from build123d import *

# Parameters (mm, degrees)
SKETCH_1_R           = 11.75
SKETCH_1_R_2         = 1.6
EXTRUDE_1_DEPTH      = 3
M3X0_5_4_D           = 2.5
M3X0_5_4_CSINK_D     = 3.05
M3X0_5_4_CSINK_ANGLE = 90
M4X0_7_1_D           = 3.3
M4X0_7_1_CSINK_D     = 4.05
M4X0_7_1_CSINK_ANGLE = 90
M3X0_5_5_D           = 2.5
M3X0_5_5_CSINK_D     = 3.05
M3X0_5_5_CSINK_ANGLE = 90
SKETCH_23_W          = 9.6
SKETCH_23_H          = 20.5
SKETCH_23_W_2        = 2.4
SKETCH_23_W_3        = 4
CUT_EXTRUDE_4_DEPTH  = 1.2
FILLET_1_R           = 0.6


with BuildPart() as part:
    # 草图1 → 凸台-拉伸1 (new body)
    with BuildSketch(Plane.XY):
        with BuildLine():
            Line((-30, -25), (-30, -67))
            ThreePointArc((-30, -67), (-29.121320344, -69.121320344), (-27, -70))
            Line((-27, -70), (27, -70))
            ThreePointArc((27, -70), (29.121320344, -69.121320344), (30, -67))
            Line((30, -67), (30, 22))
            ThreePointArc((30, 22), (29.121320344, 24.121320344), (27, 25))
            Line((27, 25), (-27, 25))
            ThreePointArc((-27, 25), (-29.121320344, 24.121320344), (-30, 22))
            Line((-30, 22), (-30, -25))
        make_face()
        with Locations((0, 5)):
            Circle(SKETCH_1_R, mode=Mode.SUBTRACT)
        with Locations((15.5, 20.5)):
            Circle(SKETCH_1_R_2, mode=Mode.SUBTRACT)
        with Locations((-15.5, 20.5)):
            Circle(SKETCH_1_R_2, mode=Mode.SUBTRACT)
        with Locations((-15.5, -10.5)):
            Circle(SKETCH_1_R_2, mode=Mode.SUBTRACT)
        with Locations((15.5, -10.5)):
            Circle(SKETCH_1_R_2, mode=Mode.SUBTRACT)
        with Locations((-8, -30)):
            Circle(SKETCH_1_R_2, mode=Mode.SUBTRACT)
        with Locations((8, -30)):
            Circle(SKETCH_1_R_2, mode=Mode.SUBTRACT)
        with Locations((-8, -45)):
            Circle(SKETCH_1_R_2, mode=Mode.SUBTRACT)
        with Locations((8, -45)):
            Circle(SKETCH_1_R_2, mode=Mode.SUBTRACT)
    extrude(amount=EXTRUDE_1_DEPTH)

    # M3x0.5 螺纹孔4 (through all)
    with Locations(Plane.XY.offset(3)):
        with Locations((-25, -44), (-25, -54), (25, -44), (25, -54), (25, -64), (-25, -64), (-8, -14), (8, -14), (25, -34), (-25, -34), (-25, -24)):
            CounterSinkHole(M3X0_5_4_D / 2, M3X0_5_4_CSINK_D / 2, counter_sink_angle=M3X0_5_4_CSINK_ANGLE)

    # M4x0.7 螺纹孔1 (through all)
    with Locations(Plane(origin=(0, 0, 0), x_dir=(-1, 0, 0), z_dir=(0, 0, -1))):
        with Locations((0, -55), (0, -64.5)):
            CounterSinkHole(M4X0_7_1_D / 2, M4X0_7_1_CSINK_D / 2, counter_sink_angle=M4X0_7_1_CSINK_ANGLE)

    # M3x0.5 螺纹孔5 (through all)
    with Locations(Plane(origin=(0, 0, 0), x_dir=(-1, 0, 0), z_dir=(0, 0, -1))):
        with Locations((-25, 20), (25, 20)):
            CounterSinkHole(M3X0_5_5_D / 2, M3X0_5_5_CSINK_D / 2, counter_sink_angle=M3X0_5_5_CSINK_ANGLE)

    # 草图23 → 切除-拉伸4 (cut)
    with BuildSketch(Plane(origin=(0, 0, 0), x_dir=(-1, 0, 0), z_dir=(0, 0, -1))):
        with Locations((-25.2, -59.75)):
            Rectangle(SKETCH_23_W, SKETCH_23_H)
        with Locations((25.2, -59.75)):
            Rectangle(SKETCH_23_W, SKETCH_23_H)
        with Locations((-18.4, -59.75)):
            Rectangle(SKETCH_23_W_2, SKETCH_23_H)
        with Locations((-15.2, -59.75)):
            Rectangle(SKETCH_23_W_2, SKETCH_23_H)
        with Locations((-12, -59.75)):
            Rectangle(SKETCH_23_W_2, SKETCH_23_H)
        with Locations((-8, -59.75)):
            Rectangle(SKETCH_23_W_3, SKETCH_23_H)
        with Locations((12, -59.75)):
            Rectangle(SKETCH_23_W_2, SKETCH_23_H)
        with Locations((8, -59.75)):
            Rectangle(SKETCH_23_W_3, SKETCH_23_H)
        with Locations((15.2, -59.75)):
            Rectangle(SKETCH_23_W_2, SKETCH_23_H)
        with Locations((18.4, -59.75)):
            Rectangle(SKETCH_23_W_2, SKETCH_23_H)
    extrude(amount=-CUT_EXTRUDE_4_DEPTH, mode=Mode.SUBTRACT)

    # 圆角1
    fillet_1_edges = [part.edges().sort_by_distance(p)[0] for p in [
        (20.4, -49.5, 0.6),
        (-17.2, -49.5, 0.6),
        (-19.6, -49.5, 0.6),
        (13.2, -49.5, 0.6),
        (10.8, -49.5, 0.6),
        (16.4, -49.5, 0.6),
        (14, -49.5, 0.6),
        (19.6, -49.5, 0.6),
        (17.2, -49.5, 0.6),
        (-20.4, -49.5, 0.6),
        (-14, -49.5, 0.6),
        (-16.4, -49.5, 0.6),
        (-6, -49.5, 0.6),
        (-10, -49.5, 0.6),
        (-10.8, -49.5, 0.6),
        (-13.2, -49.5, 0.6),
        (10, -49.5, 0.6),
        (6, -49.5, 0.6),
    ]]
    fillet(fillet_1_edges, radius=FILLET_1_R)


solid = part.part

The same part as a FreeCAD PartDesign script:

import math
import FreeCAD as App
import Part
import Sketcher
from FreeCAD import Vector
Q = App.Units.Quantity


def edges_at(feature, points):
    """Names of the edges that pass closest to the given points."""
    edges = feature.Shape.Edges
    near = lambda p: min(range(len(edges)), key=lambda i: edges[i].distToShape(Part.Vertex(*p))[0])
    return sorted({f"Edge{near(p) + 1}" for p in points})


def add_polygon(sketch, points):
    """Adds a closed chain of lines whose ends are joined by coincident constraints."""
    first, n = sketch.GeometryCount, len(points)
    for a, b in zip(points, points[1:] + points[:1]):
        sketch.addGeometry(Part.LineSegment(App.Vector(*a, 0), App.Vector(*b, 0)), False)
    for i in range(n):
        sketch.addConstraint(Sketcher.Constraint("Coincident", first + i, 2, first + (i + 1) % n, 1))

doc = App.newDocument("Part")
body = doc.addObject("PartDesign::Body", "Body")

# Sketch on XY plane
sketch1 = body.newObject("Sketcher::SketchObject", "Sketch")
sketch1.AttachmentSupport = (doc.getObject("XY_Plane"), [""])
sketch1.MapMode = "FlatFace"
sketch1.addGeometry([
    Part.ArcOfCircle(Part.Circle(Vector(-27, -67, 0), Vector(0, 0, 1), 3), math.radians(180), math.radians(270)),  # 0
    Part.LineSegment(Vector(-27, -70, 0), Vector(27, -70, 0)),  # 1
    Part.ArcOfCircle(Part.Circle(Vector(27, -67, 0), Vector(0, 0, 1), 3), math.radians(-90), math.radians(0)),  # 2
    Part.LineSegment(Vector(30, -67, 0), Vector(30, 22, 0)),  # 3
    Part.ArcOfCircle(Part.Circle(Vector(27, 22, 0), Vector(0, 0, 1), 3), math.radians(0), math.radians(90)),  # 4
    Part.LineSegment(Vector(27, 25, 0), Vector(-27, 25, 0)),  # 5
    Part.ArcOfCircle(Part.Circle(Vector(-27, 22, 0), Vector(0, 0, 1), 3), math.radians(90), math.radians(180)),  # 6
    Part.LineSegment(Vector(-30, 22, 0), Vector(-30, -67, 0)),  # 7
    Part.Circle(Vector(-8, -45, 0), Vector(0, 0, 1), 1.6),  # 8
    Part.Circle(Vector(-8, -30, 0), Vector(0, 0, 1), 1.6),  # 9
    Part.Circle(Vector(8, -45, 0), Vector(0, 0, 1), 1.6),  # 10
    Part.Circle(Vector(8, -30, 0), Vector(0, 0, 1), 1.6),  # 11
    Part.Circle(Vector(-15.5, -10.5, 0), Vector(0, 0, 1), 1.6),  # 12
    Part.Circle(Vector(-15.5, 20.5, 0), Vector(0, 0, 1), 1.6),  # 13
    Part.Circle(Vector(15.5, -10.5, 0), Vector(0, 0, 1), 1.6),  # 14
    Part.Circle(Vector(0, 5, 0), Vector(0, 0, 1), 11.8),  # 15
    Part.Circle(Vector(15.5, 20.5, 0), Vector(0, 0, 1), 1.6),  # 16
], False)
sketch1.addConstraint([
    Sketcher.Constraint("Tangent", 0, 2, 1, 1),
    Sketcher.Constraint("Tangent", 1, 2, 2, 1),
    Sketcher.Constraint("Tangent", 2, 2, 3, 1),
    Sketcher.Constraint("Tangent", 3, 2, 4, 1),
    Sketcher.Constraint("Tangent", 4, 2, 5, 1),
    Sketcher.Constraint("Tangent", 5, 2, 6, 1),
    Sketcher.Constraint("Tangent", 6, 2, 7, 1),
    Sketcher.Constraint("Tangent", 7, 2, 0, 1),
    Sketcher.Constraint("Horizontal", 1),
    Sketcher.Constraint("Vertical", 3),
    Sketcher.Constraint("Horizontal", 5),
    Sketcher.Constraint("Vertical", 7),
    Sketcher.Constraint("Equal", 0, 2),
    Sketcher.Constraint("Equal", 2, 4),
    Sketcher.Constraint("Equal", 4, 6),
    Sketcher.Constraint("Equal", 8, 9),
    Sketcher.Constraint("Equal", 9, 10),
    Sketcher.Constraint("Equal", 10, 11),
    Sketcher.Constraint("Equal", 11, 12),
    Sketcher.Constraint("Equal", 12, 13),
    Sketcher.Constraint("Equal", 13, 14),
    Sketcher.Constraint("Equal", 14, 16),
    Sketcher.Constraint("Symmetric", 8, 3, 10, 3, -2),
    Sketcher.Constraint("Symmetric", 9, 3, 11, 3, -2),
    Sketcher.Constraint("Symmetric", 12, 3, 14, 3, -2),
    Sketcher.Constraint("Symmetric", 13, 3, 16, 3, -2),
    Sketcher.Constraint("PointOnObject", 15, 3, -2),
    Sketcher.Constraint("Vertical", 8, 3, 9, 3),
    Sketcher.Constraint("Vertical", 12, 3, 13, 3),
    Sketcher.Constraint("Radius", 0, Q("3 mm")),
    Sketcher.Constraint("Diameter", 8, Q("3.2 mm")),
    Sketcher.Constraint("Diameter", 15, Q("23.5 mm")),
    Sketcher.Constraint("DistanceX", 1, 1, 1, 2, Q("54 mm")),
    Sketcher.Constraint("DistanceY", 3, 1, 3, 2, Q("89 mm")),
    Sketcher.Constraint("DistanceX", 0, 3, -1, 1, Q("27 mm")),
    Sketcher.Constraint("DistanceY", 0, 3, -1, 1, Q("67 mm")),
    Sketcher.Constraint("DistanceX", 8, 3, -1, 1, Q("8 mm")),
    Sketcher.Constraint("DistanceY", 8, 3, -1, 1, Q("45 mm")),
    Sketcher.Constraint("DistanceY", 9, 3, -1, 1, Q("30 mm")),
    Sketcher.Constraint("DistanceY", -1, 1, 15, 3, Q("5 mm")),
    Sketcher.Constraint("DistanceY", 12, 3, 13, 3, Q("31 mm")),
    Sketcher.Constraint("DistanceX", 12, 3, 14, 3, Q("31 mm")),
    Sketcher.Constraint("DistanceY", 12, 3, -1, 1, Q("10.5 mm")),
])
pad1 = body.newObject("PartDesign::Pad", "Pad")
pad1.Profile = sketch1
pad1.Length = 3

# Sketch on XY plane
sketch2 = body.newObject("Sketcher::SketchObject", "Sketch001")
sketch2.AttachmentSupport = (doc.getObject("XY_Plane"), [""])
sketch2.MapMode = "FlatFace"
sketch2.AttachmentOffset = App.Placement(Vector(0, 0, 3), App.Rotation())
sketch2.addGeometry([
    Part.Circle(Vector(-25, -44, 0), Vector(0, 0, 1), 1.2),  # 0
    Part.Circle(Vector(-25, -54, 0), Vector(0, 0, 1), 1.2),  # 1
    Part.Circle(Vector(25, -44, 0), Vector(0, 0, 1), 1.2),  # 2
    Part.Circle(Vector(25, -54, 0), Vector(0, 0, 1), 1.2),  # 3
    Part.Circle(Vector(25, -64, 0), Vector(0, 0, 1), 1.2),  # 4
    Part.Circle(Vector(-25, -64, 0), Vector(0, 0, 1), 1.2),  # 5
    Part.Circle(Vector(-8, -14, 0), Vector(0, 0, 1), 1.2),  # 6
    Part.Circle(Vector(8, -14, 0), Vector(0, 0, 1), 1.2),  # 7
    Part.Circle(Vector(25, -34, 0), Vector(0, 0, 1), 1.2),  # 8
    Part.Circle(Vector(-25, -34, 0), Vector(0, 0, 1), 1.2),  # 9
    Part.Circle(Vector(-25, -24, 0), Vector(0, 0, 1), 1.2),  # 10
], False)
sketch2.addConstraint([
    Sketcher.Constraint("Equal", 0, 1),
    Sketcher.Constraint("Equal", 1, 2),
    Sketcher.Constraint("Equal", 2, 3),
    Sketcher.Constraint("Equal", 3, 4),
    Sketcher.Constraint("Equal", 4, 5),
    Sketcher.Constraint("Equal", 5, 6),
    Sketcher.Constraint("Equal", 6, 7),
    Sketcher.Constraint("Equal", 7, 8),
    Sketcher.Constraint("Equal", 8, 9),
    Sketcher.Constraint("Equal", 9, 10),
    Sketcher.Constraint("Symmetric", 0, 3, 2, 3, -2),
    Sketcher.Constraint("Symmetric", 1, 3, 3, 3, -2),
    Sketcher.Constraint("Symmetric", 4, 3, 5, 3, -2),
    Sketcher.Constraint("Symmetric", 6, 3, 7, 3, -2),
    Sketcher.Constraint("Symmetric", 8, 3, 9, 3, -2),
    Sketcher.Constraint("Vertical", 0, 3, 1, 3),
    Sketcher.Constraint("Vertical", 3, 3, 4, 3),
    Sketcher.Constraint("Vertical", 4, 3, 8, 3),
    Sketcher.Constraint("Vertical", 9, 3, 10, 3),
    Sketcher.Constraint("Diameter", 0, Q("2.5 mm")),
    Sketcher.Constraint("DistanceX", 0, 3, -1, 1, Q("25 mm")),
    Sketcher.Constraint("DistanceY", 0, 3, -1, 1, Q("44 mm")),
    Sketcher.Constraint("DistanceY", 1, 3, -1, 1, Q("54 mm")),
    Sketcher.Constraint("DistanceY", 4, 3, -1, 1, Q("64 mm")),
    Sketcher.Constraint("DistanceX", 6, 3, -1, 1, Q("8 mm")),
    Sketcher.Constraint("DistanceY", 6, 3, -1, 1, Q("14 mm")),
    Sketcher.Constraint("DistanceY", 8, 3, -1, 1, Q("34 mm")),
    Sketcher.Constraint("DistanceY", 10, 3, -1, 1, Q("24 mm")),
])
doc.recompute()
hole = body.newObject("PartDesign::Hole", "Hole")
hole.Profile = sketch2
hole.ThreadType = "None"
hole.Diameter = 2.5
hole.DepthType = "ThroughAll"
hole.HoleCutType = "Countersink"
hole.HoleCutDiameter = 3.05
hole.HoleCutCountersinkAngle = 90

# Sketch on XY plane
sketch3 = body.newObject("Sketcher::SketchObject", "Sketch002")
sketch3.AttachmentSupport = (doc.getObject("XY_Plane"), [""])
sketch3.MapMode = "FlatFace"
sketch3.addGeometry([
    Part.Circle(Vector(0, -55, 0), Vector(0, 0, 1), 1.6),
    Part.Circle(Vector(0, -64.5, 0), Vector(0, 0, 1), 1.6),
], False)
sketch3.addConstraint([
    Sketcher.Constraint("Equal", 0, 1),
    Sketcher.Constraint("PointOnObject", 0, 3, -2),
    Sketcher.Constraint("PointOnObject", 1, 3, -2),
    Sketcher.Constraint("Diameter", 0, Q("3.3 mm")),
    Sketcher.Constraint("DistanceY", 0, 3, -1, 1, Q("55 mm")),
    Sketcher.Constraint("DistanceY", 1, 3, -1, 1, Q("64.5 mm")),
])
doc.recompute()
hole2 = body.newObject("PartDesign::Hole", "Hole001")
hole2.Profile = sketch3
hole2.ThreadType = "None"
hole2.Diameter = 3.3
hole2.DepthType = "ThroughAll"
hole2.HoleCutType = "Countersink"
hole2.HoleCutDiameter = 4.05
hole2.HoleCutCountersinkAngle = 90
hole2.Reversed = True

# Sketch on XY plane
sketch4 = body.newObject("Sketcher::SketchObject", "Sketch003")
sketch4.AttachmentSupport = (doc.getObject("XY_Plane"), [""])
sketch4.MapMode = "FlatFace"
sketch4.addGeometry([
    Part.Circle(Vector(25, 20, 0), Vector(0, 0, 1), 1.2),
    Part.Circle(Vector(-25, 20, 0), Vector(0, 0, 1), 1.2),
], False)
sketch4.addConstraint([
    Sketcher.Constraint("Equal", 0, 1),
    Sketcher.Constraint("Symmetric", 0, 3, 1, 3, -2),
    Sketcher.Constraint("Diameter", 0, Q("2.5 mm")),
    Sketcher.Constraint("DistanceX", -1, 1, 0, 3, Q("25 mm")),
    Sketcher.Constraint("DistanceY", -1, 1, 0, 3, Q("20 mm")),
])
doc.recompute()
hole3 = body.newObject("PartDesign::Hole", "Hole002")
hole3.Profile = sketch4
hole3.ThreadType = "None"
hole3.Diameter = 2.5
hole3.DepthType = "ThroughAll"
hole3.HoleCutType = "Countersink"
hole3.HoleCutDiameter = 3.05
hole3.HoleCutCountersinkAngle = 90
hole3.Reversed = True

# Sketch on XY plane
sketch5 = body.newObject("Sketcher::SketchObject", "Sketch004")
sketch5.AttachmentSupport = (doc.getObject("XY_Plane"), [""])
sketch5.MapMode = "FlatFace"
add_polygon(sketch5, [(30, -49.5), (30, -70), (20.4, -70), (20.4, -49.5)])  # lines 0-3
add_polygon(sketch5, [(-20.4, -49.5), (-20.4, -70), (-30, -70), (-30, -49.5)])  # lines 4-7
add_polygon(sketch5, [(19.6, -49.5), (19.6, -70), (17.2, -70), (17.2, -49.5)])  # lines 8-11
add_polygon(sketch5, [(16.4, -49.5), (16.4, -70), (14, -70), (14, -49.5)])  # lines 12-15
add_polygon(sketch5, [(13.2, -49.5), (13.2, -70), (10.8, -70), (10.8, -49.5)])  # lines 16-19
add_polygon(sketch5, [(10, -49.5), (10, -70), (6, -70), (6, -49.5)])  # lines 20-23
add_polygon(sketch5, [(-10.8, -49.5), (-10.8, -70), (-13.2, -70), (-13.2, -49.5)])  # lines 24-27
add_polygon(sketch5, [(-6, -49.5), (-6, -70), (-10, -70), (-10, -49.5)])  # lines 28-31
add_polygon(sketch5, [(-14, -49.5), (-14, -70), (-16.4, -70), (-16.4, -49.5)])  # lines 32-35
add_polygon(sketch5, [(-17.2, -49.5), (-17.2, -70), (-19.6, -70), (-19.6, -49.5)])  # lines 36-39
sketch5.addConstraint([
    Sketcher.Constraint("Vertical", 0),
    Sketcher.Constraint("Horizontal", 1),
    Sketcher.Constraint("Vertical", 2),
    Sketcher.Constraint("Horizontal", 3),
    Sketcher.Constraint("Vertical", 4),
    Sketcher.Constraint("Horizontal", 5),
    Sketcher.Constraint("Vertical", 6),
    Sketcher.Constraint("Horizontal", 7),
    Sketcher.Constraint("Vertical", 8),
    Sketcher.Constraint("Horizontal", 9),
    Sketcher.Constraint("Vertical", 10),
    Sketcher.Constraint("Horizontal", 11),
    Sketcher.Constraint("Vertical", 12),
    Sketcher.Constraint("Horizontal", 13),
    Sketcher.Constraint("Vertical", 14),
    Sketcher.Constraint("Horizontal", 15),
    Sketcher.Constraint("Vertical", 16),
    Sketcher.Constraint("Horizontal", 17),
    Sketcher.Constraint("Vertical", 18),
    Sketcher.Constraint("Horizontal", 19),
    Sketcher.Constraint("Vertical", 20),
    Sketcher.Constraint("Horizontal", 21),
    Sketcher.Constraint("Vertical", 22),
    Sketcher.Constraint("Horizontal", 23),
    Sketcher.Constraint("Vertical", 24),
    Sketcher.Constraint("Horizontal", 25),
    Sketcher.Constraint("Vertical", 26),
    Sketcher.Constraint("Horizontal", 27),
    Sketcher.Constraint("Vertical", 28),
    Sketcher.Constraint("Horizontal", 29),
    Sketcher.Constraint("Vertical", 30),
    Sketcher.Constraint("Horizontal", 31),
    Sketcher.Constraint("Vertical", 32),
    Sketcher.Constraint("Horizontal", 33),
    Sketcher.Constraint("Vertical", 34),
    Sketcher.Constraint("Horizontal", 35),
    Sketcher.Constraint("Vertical", 36),
    Sketcher.Constraint("Horizontal", 37),
    Sketcher.Constraint("Vertical", 38),
    Sketcher.Constraint("Horizontal", 39),
    Sketcher.Constraint("Symmetric", 1, 2, 4, 2, -2),
    Sketcher.Constraint("Symmetric", 3, 2, 6, 2, -2),
    Sketcher.Constraint("Symmetric", 17, 2, 24, 2, -2),
    Sketcher.Constraint("Symmetric", 19, 2, 26, 2, -2),
    Sketcher.Constraint("Symmetric", 21, 2, 28, 2, -2),
    Sketcher.Constraint("Symmetric", 23, 2, 30, 2, -2),
    Sketcher.Constraint("Symmetric", 13, 2, 32, 2, -2),
    Sketcher.Constraint("Symmetric", 15, 2, 34, 2, -2),
    Sketcher.Constraint("Symmetric", 9, 2, 36, 2, -2),
    Sketcher.Constraint("Symmetric", 11, 2, 38, 2, -2),
    Sketcher.Constraint("Horizontal", 5, 2, 8, 2),
    Sketcher.Constraint("Horizontal", 7, 2, 10, 2),
    Sketcher.Constraint("Horizontal", 9, 2, 12, 2),
    Sketcher.Constraint("Horizontal", 11, 2, 14, 2),
    Sketcher.Constraint("Horizontal", 13, 2, 16, 2),
    Sketcher.Constraint("Horizontal", 15, 2, 18, 2),
    Sketcher.Constraint("Horizontal", 17, 2, 20, 2),
    Sketcher.Constraint("Horizontal", 19, 2, 22, 2),
    Sketcher.Constraint("Equal", 11, 13),
    Sketcher.Constraint("Equal", 15, 17),
    Sketcher.Constraint("DistanceX", 21, 2, 21, 1, Q("4 mm")),
    Sketcher.Constraint("DistanceX", 1, 2, 1, 1, Q("9.6 mm")),
    Sketcher.Constraint("DistanceX", 9, 2, 9, 1, Q("2.4 mm")),
    Sketcher.Constraint("DistanceY", 0, 2, 0, 1, Q("20.5 mm")),
    Sketcher.Constraint("DistanceX", -1, 1, 0, 2, Q("30 mm")),
    Sketcher.Constraint("DistanceY", 0, 2, -1, 1, Q("70 mm")),
    Sketcher.Constraint("DistanceX", -1, 1, 13, 2, Q("14 mm")),
    Sketcher.Constraint("DistanceX", -1, 1, 20, 2, Q("10 mm")),
    Sketcher.Constraint("DistanceX", 4, 2, 8, 2, Q("40 mm")),
    Sketcher.Constraint("DistanceX", 16, 2, 9, 2, Q("4 mm")),
])
pocket1 = body.newObject("PartDesign::Pocket", "Pocket")
pocket1.Profile = sketch5
pocket1.Length = 1.2
pocket1.Reversed = True
doc.recompute()

fillet = body.newObject("PartDesign::Fillet", "Fillet")
fillet.Base = (pocket1, edges_at(pocket1, [
    (20.4, -49.5, 0.6),
    (-17.2, -49.5, 0.6),
    (-19.6, -49.5, 0.6),
    (13.2, -49.5, 0.6),
    (10.8, -49.5, 0.6),
    (16.4, -49.5, 0.6),
    (14, -49.5, 0.6),
    (19.6, -49.5, 0.6),
    (17.2, -49.5, 0.6),
    (-20.4, -49.5, 0.6),
    (-14, -49.5, 0.6),
    (-16.4, -49.5, 0.6),
    (-6, -49.5, 0.6),
    (-10, -49.5, 0.6),
    (-10.8, -49.5, 0.6),
    (-13.2, -49.5, 0.6),
    (10, -49.5, 0.6),
    (6, -49.5, 0.6),
]))
fillet.Radius = 0.6

doc.recompute()
